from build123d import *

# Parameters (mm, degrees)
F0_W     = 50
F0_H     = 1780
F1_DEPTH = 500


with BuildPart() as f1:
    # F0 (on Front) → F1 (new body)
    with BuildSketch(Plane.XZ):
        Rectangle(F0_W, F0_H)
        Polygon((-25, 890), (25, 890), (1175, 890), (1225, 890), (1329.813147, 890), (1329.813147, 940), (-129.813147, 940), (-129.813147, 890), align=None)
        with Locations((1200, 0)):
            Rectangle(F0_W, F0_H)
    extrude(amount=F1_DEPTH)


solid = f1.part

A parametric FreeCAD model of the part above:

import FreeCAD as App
import Part
import Sketcher

doc = App.newDocument("Part")
params = doc.addObject("Spreadsheet::Sheet", "Params")
for row, (alias, value) in enumerate([
    ("sketch1_width", "50 mm"),
    ("sketch1_width2", "1150 mm"),
    ("sketch1_height", "1780 mm"),
    ("pad1_length", "500 mm"),
], start=1):
    params.set(f"A{row}", alias)
    params.set(f"B{row}", "=" + value)
    params.setAlias(f"B{row}", alias)

body = doc.addObject("PartDesign::Body", "Body")

sketch1 = body.newObject("Sketcher::SketchObject", "Sketch")
sketch1.AttachmentSupport = (doc.getObject("XZ_Plane"), [""])
sketch1.MapMode = "FlatFace"
sketch1.addGeometry([
    Part.LineSegment(App.Vector(-25, 890, 0), App.Vector(-25, -890, 0)),
    Part.LineSegment(App.Vector(-25, -890, 0), App.Vector(25, -890, 0)),
    Part.LineSegment(App.Vector(25, -890, 0), App.Vector(25, 890, 0)),
    Part.LineSegment(App.Vector(25, 890, 0), App.Vector(1175, 890, 0)),
    Part.LineSegment(App.Vector(1175, 890, 0), App.Vector(1175, -890, 0)),
    Part.LineSegment(App.Vector(1175, -890, 0), App.Vector(1225, -890, 0)),
    Part.LineSegment(App.Vector(1225, -890, 0), App.Vector(1225, 890, 0)),
    Part.LineSegment(App.Vector(1225, 890, 0), App.Vector(1330, 890, 0)),
    Part.LineSegment(App.Vector(1330, 890, 0), App.Vector(1330, 940, 0)),
    Part.LineSegment(App.Vector(1330, 940, 0), App.Vector(-130, 940, 0)),
    Part.LineSegment(App.Vector(-130, 940, 0), App.Vector(-130, 890, 0)),
    Part.LineSegment(App.Vector(-130, 890, 0), App.Vector(-25, 890, 0)),
], False)
sketch1.addConstraint([
    Sketcher.Constraint("Coincident", 0, 2, 1, 1),
    Sketcher.Constraint("Coincident", 1, 2, 2, 1),
    Sketcher.Constraint("Coincident", 2, 2, 3, 1),
    Sketcher.Constraint("Coincident", 3, 2, 4, 1),
    Sketcher.Constraint("Coincident", 4, 2, 5, 1),
    Sketcher.Constraint("Coincident", 5, 2, 6, 1),
    Sketcher.Constraint("Coincident", 6, 2, 7, 1),
    Sketcher.Constraint("Coincident", 7, 2, 8, 1),
    Sketcher.Constraint("Coincident", 8, 2, 9, 1),
    Sketcher.Constraint("Coincident", 9, 2, 10, 1),
    Sketcher.Constraint("Coincident", 10, 2, 11, 1),
    Sketcher.Constraint("Coincident", 11, 2, 0, 1),
    Sketcher.Constraint("Vertical", 0),
    Sketcher.Constraint("Horizontal", 1),
    Sketcher.Constraint("Vertical", 2),
    Sketcher.Constraint("Horizontal", 3),
    Sketcher.Constraint("Vertical", 4),
    Sketcher.Constraint("Horizontal", 5),
    Sketcher.Constraint("Vertical", 6),
    Sketcher.Constraint("Horizontal", 7),
    Sketcher.Constraint("Vertical", 8),
    Sketcher.Constraint("Horizontal", 9),
    Sketcher.Constraint("Vertical", 10),
    Sketcher.Constraint("Horizontal", 11),
    Sketcher.Constraint("Symmetric", 0, 2, 2, 2, -1, 1),
    Sketcher.Constraint("Horizontal", 1, 2, 4, 2),
    Sketcher.Constraint("Horizontal", 3, 2, 6, 2),
    Sketcher.Constraint("Horizontal", 7, 2, 10, 2),
    Sketcher.Constraint("Equal", 1, 5),
    Sketcher.Constraint("Equal", 7, 11),
    Sketcher.Constraint("Equal", 5, 8),
    Sketcher.Constraint("DistanceX", 1, 1, 1, 2, 50.0),
    Sketcher.Constraint("DistanceX", 3, 1, 3, 2, 1150.0),
    Sketcher.Constraint("DistanceY", 0, 2, 0, 1, 1780.0),
    Sketcher.Constraint("DistanceX", 7, 1, 7, 2, 104.813147),
])
sketch1.setExpression("Constraints[31]", "Params.sketch1_width")
sketch1.setExpression("Constraints[32]", "Params.sketch1_width2")
sketch1.setExpression("Constraints[33]", "Params.sketch1_height")
pad1 = body.newObject("PartDesign::Pad", "Pad")
pad1.Profile = sketch1
pad1.setExpression("Length", "Params.pad1_length")

doc.recompute()
